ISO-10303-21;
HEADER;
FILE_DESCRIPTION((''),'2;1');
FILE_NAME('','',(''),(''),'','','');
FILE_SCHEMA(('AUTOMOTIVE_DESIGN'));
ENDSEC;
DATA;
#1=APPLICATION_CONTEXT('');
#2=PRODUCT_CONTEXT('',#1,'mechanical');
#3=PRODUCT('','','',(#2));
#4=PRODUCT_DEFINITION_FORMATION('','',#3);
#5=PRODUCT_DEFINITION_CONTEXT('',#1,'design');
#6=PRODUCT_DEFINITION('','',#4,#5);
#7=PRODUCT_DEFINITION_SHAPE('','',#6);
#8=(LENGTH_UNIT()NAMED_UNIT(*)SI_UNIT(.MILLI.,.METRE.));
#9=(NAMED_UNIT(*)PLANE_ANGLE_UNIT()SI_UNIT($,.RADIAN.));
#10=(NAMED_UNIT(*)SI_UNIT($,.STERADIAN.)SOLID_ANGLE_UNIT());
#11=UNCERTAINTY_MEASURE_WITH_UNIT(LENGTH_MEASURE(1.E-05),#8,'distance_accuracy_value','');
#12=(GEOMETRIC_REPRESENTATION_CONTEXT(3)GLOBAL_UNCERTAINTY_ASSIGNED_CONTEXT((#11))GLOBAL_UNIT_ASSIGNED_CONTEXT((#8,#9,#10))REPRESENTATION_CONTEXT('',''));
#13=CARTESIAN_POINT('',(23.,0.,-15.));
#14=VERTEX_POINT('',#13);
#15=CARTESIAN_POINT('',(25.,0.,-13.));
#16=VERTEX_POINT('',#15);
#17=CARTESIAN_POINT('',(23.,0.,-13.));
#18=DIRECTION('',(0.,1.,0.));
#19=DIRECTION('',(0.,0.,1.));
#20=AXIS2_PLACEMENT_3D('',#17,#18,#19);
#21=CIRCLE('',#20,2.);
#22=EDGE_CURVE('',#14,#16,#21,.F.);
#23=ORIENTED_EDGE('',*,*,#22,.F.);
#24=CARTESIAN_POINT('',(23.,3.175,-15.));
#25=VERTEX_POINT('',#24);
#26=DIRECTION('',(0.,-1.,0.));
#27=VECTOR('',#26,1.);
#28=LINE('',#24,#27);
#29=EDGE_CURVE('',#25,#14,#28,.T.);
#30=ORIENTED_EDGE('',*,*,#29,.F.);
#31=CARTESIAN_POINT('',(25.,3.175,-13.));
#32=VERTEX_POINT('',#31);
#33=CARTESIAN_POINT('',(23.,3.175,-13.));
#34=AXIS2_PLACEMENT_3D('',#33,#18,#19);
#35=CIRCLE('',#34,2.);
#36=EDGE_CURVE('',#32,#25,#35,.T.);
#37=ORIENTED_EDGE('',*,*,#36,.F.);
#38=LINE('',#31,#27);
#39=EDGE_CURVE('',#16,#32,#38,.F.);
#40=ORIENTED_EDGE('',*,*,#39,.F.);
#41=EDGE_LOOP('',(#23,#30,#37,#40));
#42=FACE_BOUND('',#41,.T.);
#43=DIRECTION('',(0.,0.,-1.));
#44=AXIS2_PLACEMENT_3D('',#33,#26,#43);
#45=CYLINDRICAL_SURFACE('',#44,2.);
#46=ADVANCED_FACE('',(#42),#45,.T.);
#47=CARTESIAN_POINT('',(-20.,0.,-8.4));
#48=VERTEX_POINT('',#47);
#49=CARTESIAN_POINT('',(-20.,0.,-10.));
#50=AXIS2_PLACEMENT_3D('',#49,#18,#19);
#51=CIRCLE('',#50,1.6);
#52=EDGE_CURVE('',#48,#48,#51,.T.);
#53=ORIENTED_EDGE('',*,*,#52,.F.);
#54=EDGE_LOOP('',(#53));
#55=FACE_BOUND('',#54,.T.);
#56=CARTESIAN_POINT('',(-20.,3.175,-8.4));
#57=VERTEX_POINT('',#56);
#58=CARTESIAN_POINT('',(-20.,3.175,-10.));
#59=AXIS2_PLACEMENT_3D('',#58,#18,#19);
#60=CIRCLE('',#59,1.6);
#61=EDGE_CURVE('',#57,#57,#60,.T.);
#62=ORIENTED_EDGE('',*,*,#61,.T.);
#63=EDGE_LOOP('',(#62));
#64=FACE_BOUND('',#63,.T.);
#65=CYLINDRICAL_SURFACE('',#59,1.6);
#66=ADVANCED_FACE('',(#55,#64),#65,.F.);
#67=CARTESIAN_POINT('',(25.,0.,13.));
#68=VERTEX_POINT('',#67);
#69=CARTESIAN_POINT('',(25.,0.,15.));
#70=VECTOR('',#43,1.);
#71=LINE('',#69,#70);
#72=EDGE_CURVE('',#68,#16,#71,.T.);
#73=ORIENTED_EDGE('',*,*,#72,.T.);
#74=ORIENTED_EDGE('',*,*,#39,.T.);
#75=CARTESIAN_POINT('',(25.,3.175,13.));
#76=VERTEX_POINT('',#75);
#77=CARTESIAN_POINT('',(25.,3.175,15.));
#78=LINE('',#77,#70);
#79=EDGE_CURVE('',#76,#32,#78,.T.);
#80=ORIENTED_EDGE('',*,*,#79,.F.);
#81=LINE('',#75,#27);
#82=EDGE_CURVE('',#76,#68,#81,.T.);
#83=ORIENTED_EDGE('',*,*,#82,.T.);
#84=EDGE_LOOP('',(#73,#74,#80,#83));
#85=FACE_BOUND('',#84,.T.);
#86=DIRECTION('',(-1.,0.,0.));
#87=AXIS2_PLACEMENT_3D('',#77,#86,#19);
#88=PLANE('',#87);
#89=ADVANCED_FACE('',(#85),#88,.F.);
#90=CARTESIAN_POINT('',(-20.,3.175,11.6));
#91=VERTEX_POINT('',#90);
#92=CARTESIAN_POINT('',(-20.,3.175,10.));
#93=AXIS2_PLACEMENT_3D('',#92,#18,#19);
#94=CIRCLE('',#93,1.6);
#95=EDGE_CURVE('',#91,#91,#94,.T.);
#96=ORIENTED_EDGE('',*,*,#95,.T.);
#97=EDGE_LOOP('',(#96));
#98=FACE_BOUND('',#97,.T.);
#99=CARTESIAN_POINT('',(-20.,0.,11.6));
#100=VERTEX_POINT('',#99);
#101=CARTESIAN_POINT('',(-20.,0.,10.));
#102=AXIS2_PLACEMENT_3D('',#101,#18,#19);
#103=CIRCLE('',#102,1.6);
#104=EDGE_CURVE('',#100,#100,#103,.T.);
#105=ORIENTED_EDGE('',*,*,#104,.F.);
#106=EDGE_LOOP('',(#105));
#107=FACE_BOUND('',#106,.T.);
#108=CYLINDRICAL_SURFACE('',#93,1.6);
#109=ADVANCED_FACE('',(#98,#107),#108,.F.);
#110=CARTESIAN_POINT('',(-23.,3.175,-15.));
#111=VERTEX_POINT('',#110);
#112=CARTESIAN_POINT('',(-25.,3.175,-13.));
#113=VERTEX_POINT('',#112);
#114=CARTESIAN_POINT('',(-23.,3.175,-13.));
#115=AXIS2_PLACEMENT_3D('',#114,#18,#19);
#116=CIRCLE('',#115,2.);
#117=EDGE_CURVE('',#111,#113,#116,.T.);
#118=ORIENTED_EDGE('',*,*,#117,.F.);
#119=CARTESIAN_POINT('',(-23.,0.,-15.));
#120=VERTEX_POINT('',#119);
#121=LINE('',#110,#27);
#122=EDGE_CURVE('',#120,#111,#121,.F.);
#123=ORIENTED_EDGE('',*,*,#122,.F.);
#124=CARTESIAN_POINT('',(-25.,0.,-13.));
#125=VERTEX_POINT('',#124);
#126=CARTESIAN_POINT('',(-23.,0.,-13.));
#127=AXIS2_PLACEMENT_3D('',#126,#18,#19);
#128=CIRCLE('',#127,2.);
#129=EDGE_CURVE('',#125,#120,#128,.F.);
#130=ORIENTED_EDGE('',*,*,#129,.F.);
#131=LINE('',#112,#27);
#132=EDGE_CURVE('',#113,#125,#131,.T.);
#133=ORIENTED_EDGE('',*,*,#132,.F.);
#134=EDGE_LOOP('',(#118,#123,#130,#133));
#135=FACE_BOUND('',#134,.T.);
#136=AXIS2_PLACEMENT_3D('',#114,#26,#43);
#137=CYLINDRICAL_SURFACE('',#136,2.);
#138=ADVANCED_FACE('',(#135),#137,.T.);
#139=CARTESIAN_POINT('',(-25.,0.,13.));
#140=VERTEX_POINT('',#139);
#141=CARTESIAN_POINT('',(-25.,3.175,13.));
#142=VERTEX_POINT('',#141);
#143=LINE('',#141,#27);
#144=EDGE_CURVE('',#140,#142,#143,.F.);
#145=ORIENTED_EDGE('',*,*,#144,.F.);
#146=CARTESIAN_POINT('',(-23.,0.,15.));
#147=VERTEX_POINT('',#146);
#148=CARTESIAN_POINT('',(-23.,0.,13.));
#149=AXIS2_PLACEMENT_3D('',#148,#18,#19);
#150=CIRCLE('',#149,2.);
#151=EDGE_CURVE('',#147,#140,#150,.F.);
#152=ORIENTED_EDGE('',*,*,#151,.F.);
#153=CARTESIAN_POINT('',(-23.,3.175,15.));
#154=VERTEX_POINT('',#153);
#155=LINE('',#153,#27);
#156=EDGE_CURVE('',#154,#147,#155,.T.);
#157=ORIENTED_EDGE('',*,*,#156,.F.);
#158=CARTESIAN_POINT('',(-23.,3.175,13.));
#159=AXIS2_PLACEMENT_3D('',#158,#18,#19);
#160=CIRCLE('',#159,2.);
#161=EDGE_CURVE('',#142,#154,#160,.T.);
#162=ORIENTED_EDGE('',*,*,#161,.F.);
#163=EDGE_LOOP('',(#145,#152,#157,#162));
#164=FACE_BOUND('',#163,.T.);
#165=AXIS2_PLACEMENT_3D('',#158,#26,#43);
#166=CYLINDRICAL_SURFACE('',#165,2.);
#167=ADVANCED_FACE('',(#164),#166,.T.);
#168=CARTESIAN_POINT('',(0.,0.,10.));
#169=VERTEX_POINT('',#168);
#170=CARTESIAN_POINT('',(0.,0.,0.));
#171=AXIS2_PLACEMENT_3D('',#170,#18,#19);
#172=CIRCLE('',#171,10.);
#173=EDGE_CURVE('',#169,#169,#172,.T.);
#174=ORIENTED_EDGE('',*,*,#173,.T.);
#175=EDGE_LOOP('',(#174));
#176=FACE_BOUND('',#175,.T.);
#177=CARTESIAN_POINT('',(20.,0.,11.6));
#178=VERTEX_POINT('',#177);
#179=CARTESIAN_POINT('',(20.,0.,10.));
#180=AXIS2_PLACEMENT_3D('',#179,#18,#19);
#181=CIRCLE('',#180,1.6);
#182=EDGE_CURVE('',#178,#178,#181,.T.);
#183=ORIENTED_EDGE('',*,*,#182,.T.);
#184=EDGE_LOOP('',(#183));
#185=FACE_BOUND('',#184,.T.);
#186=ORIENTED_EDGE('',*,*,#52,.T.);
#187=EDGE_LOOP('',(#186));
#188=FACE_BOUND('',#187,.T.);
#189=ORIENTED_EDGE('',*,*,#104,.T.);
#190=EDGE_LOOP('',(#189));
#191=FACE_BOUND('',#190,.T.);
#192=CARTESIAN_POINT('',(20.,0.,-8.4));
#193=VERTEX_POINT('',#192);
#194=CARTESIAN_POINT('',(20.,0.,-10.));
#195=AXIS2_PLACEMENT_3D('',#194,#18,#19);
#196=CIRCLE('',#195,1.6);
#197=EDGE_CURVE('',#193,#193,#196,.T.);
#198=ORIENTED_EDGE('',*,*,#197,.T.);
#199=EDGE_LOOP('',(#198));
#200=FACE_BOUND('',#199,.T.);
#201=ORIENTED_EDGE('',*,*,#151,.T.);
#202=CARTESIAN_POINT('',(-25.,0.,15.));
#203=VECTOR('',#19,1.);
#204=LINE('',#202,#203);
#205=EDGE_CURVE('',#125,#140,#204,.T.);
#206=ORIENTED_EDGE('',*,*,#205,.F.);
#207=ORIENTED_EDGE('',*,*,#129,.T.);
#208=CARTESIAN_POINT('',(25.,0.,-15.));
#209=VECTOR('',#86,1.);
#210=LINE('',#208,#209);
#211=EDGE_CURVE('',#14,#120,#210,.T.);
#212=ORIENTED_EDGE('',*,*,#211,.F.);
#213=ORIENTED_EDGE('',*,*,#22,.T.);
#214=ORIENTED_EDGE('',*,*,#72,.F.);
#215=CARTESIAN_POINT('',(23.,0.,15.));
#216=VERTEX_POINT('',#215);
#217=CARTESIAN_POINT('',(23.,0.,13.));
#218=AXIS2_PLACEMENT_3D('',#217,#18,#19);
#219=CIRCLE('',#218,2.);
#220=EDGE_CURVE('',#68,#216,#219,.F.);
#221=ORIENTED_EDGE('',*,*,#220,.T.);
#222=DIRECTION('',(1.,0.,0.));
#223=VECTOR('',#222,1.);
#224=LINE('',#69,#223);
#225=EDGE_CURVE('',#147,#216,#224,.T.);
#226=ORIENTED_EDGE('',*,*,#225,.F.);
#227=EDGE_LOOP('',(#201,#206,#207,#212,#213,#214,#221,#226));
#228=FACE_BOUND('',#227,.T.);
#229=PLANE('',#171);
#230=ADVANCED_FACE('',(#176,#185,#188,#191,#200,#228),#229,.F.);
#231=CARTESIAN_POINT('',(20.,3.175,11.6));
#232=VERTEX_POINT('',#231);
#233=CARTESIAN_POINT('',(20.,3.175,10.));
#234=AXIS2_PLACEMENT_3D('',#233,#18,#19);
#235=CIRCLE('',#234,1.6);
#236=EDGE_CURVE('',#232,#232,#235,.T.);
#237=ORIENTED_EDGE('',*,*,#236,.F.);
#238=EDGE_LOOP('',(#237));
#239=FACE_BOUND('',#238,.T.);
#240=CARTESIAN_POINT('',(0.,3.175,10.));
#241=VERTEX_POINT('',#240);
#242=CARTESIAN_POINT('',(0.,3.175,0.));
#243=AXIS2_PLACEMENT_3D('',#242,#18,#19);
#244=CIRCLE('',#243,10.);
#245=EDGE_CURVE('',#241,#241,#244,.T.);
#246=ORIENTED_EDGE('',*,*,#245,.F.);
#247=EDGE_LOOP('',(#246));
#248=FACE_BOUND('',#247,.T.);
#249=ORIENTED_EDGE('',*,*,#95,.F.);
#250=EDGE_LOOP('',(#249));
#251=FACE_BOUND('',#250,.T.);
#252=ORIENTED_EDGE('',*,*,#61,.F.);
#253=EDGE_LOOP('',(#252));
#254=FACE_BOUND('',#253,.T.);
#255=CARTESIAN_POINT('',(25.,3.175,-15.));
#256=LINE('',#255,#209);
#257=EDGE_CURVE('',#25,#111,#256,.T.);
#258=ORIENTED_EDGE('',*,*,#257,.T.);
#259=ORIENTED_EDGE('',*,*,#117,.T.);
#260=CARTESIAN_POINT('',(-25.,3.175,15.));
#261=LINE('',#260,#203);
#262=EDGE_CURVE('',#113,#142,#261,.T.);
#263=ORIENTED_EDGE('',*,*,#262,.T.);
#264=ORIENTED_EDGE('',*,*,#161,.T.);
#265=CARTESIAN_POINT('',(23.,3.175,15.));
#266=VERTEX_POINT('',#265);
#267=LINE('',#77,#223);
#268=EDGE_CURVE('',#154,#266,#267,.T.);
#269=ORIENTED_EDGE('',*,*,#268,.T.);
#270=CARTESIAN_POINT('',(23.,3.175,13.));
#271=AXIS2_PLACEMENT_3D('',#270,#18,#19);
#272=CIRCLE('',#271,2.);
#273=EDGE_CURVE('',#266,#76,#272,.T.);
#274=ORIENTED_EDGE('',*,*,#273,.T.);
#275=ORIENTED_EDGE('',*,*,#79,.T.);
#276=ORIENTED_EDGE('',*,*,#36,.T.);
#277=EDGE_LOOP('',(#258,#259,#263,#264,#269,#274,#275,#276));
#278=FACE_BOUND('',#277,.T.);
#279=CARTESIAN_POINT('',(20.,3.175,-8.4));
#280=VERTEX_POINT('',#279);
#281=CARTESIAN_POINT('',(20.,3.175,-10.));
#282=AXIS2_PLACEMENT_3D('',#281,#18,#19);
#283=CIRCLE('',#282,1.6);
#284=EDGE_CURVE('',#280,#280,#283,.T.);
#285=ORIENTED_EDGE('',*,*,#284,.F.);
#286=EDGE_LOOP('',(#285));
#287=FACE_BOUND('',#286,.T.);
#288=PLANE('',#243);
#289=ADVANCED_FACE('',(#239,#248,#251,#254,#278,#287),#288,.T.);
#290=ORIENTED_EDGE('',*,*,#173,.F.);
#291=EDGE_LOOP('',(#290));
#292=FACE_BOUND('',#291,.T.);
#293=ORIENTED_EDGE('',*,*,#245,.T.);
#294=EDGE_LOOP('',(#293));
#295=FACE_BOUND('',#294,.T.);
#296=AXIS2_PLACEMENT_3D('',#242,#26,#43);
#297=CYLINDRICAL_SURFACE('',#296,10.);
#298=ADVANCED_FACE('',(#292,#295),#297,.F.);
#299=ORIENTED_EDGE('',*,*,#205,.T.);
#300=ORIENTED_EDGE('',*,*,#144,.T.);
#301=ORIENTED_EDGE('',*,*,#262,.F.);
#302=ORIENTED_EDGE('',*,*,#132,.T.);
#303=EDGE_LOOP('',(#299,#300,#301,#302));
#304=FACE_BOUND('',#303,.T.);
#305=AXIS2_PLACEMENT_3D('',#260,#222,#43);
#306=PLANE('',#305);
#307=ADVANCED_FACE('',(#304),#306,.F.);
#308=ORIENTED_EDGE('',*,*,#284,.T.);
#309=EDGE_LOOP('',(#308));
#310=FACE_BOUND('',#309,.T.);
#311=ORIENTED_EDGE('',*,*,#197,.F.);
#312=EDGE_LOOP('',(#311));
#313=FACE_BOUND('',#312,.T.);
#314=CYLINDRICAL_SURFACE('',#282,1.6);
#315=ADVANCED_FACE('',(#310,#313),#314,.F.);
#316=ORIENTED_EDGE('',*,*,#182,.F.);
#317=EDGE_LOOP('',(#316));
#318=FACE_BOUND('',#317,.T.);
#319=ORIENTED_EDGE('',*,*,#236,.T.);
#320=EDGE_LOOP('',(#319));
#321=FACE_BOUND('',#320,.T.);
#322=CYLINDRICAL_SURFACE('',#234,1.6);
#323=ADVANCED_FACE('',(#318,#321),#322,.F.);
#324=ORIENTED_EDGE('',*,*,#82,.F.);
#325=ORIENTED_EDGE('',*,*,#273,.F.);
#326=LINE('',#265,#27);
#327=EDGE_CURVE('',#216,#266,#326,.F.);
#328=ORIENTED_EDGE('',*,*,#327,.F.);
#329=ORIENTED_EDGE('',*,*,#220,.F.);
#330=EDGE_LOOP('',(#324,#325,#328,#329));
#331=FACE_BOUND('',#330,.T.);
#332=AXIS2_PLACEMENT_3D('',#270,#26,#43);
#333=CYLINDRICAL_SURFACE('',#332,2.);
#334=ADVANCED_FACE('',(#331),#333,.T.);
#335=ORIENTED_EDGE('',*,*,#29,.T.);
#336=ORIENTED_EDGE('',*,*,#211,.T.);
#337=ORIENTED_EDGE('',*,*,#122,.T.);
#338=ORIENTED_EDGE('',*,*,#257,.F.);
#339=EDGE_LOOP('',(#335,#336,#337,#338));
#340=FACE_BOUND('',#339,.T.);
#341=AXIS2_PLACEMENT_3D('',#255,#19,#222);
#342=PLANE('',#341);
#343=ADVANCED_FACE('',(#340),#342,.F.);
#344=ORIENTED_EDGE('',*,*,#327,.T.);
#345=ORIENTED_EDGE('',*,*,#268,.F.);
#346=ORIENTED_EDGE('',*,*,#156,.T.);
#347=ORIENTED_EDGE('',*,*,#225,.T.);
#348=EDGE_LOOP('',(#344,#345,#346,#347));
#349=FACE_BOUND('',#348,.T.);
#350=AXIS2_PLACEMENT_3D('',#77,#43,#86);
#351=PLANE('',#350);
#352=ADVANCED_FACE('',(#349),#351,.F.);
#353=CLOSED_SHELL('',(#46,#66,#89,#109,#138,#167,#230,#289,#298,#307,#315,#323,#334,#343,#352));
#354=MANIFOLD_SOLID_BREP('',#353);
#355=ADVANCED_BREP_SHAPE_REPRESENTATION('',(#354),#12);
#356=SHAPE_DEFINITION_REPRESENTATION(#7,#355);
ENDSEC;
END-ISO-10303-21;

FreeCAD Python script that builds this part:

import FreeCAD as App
import Part
import Sketcher
from FreeCAD import Vector


def edges_at(feature, points):
    """Names of the edges that pass closest to the given points."""
    edges = feature.Shape.Edges
    near = lambda p: min(range(len(edges)), key=lambda i: edges[i].distToShape(Part.Vertex(*p))[0])
    return sorted({f"Edge{near(p) + 1}" for p in points})

doc = App.newDocument("Part")
body = doc.addObject("PartDesign::Body", "Body")

# Sketch on XZ plane
sketch1 = body.newObject("Sketcher::SketchObject", "Sketch")
sketch1.AttachmentSupport = (doc.getObject("XZ_Plane"), [""])
sketch1.MapMode = "FlatFace"
sketch1.addGeometry(Part.LineSegment(Vector(-25, -15, 0), Vector(-25, 15, 0)), False)
sketch1.addGeometry(Part.LineSegment(Vector(-25, 15, 0), Vector(25, 15, 0)), False)
sketch1.addGeometry(Part.LineSegment(Vector(25, 15, 0), Vector(25, -15, 0)), False)
sketch1.addGeometry(Part.LineSegment(Vector(25, -15, 0), Vector(-25, -15, 0)), False)
sketch1.addGeometry(Part.Circle(Vector(0, 0, 0), Vector(0, 0, 1), 10), False)
sketch1.addConstraint(Sketcher.Constraint("Coincident", 0, 2, 1, 1))
sketch1.addConstraint(Sketcher.Constraint("Coincident", 1, 2, 2, 1))
sketch1.addConstraint(Sketcher.Constraint("Coincident", 2, 2, 3, 1))
sketch1.addConstraint(Sketcher.Constraint("Coincident", 3, 2, 0, 1))
sketch1.addConstraint(Sketcher.Constraint("Vertical", 0))
sketch1.addConstraint(Sketcher.Constraint("Horizontal", 1))
sketch1.addConstraint(Sketcher.Constraint("Vertical", 2))
sketch1.addConstraint(Sketcher.Constraint("Horizontal", 3))
sketch1.addConstraint(Sketcher.Constraint("Coincident", 4, 3, -1, 1))
sketch1.addConstraint(Sketcher.Constraint("Symmetric", 0, 2, 2, 2, -1, 1))
sketch1.addConstraint(Sketcher.Constraint("Diameter", 4, 20.0))
sketch1.addConstraint(Sketcher.Constraint("DistanceX", 1, 1, 1, 2, 50.0))
sketch1.addConstraint(Sketcher.Constraint("DistanceY", 0, 1, 0, 2, 30.0))
pad1 = body.newObject("PartDesign::Pad", "Pad")
pad1.Profile = sketch1
pad1.Length = 3.175
pad1.Reversed = True

# Sketch on XZ plane
sketch2 = body.newObject("Sketcher::SketchObject", "Sketch001")
sketch2.AttachmentSupport = (doc.getObject("XZ_Plane"), [""])
sketch2.MapMode = "FlatFace"
sketch2.AttachmentOffset = App.Placement(Vector(0, 0, -3.175), App.Rotation())
sketch2.addGeometry(Part.Circle(Vector(0, 0, 0), Vector(0, 0, 1), 1.6), False)
sketch2.addGeometry(Part.Circle(Vector(-20, -10, 0), Vector(0, 0, 1), 1.6), False)
sketch2.addGeometry(Part.Circle(Vector(20, 10, 0), Vector(0, 0, 1), 1.6), False)
sketch2.addGeometry(Part.Circle(Vector(20, -10, 0), Vector(0, 0, 1), 1.6), False)
sketch2.addGeometry(Part.Circle(Vector(-20, 10, 0), Vector(0, 0, 1), 1.6), False)
sketch2.addConstraint(Sketcher.Constraint("Coincident", 0, 3, -1, 1))
sketch2.addConstraint(Sketcher.Constraint("Equal", 0, 1))
sketch2.addConstraint(Sketcher.Constraint("Equal", 1, 2))
sketch2.addConstraint(Sketcher.Constraint("Equal", 2, 3))
sketch2.addConstraint(Sketcher.Constraint("Equal", 3, 4))
sketch2.addConstraint(Sketcher.Constraint("Symmetric", 1, 3, 2, 3, -1, 1))
sketch2.addConstraint(Sketcher.Constraint("Symmetric", 3, 3, 4, 3, -1, 1))
sketch2.addConstraint(Sketcher.Constraint("Symmetric", 1, 3, 3, 3, -2))
sketch2.addConstraint(Sketcher.Constraint("Diameter", 0, 3.2))
sketch2.addConstraint(Sketcher.Constraint("DistanceX", 1, 3, -1, 1, 20.0))
sketch2.addConstraint(Sketcher.Constraint("DistanceY", 1, 3, -1, 1, 10.0))
doc.recompute()
hole = body.newObject("PartDesign::Hole", "Hole")
hole.Profile = sketch2
hole.ThreadType = "None"
hole.Diameter = 3.2
hole.DepthType = "Dimension"
hole.Depth = 3.175
hole.DrillPoint = "Flat"
hole.Reversed = True
doc.recompute()

fillet = body.newObject("PartDesign::Fillet", "Fillet")
fillet.Base = (hole, edges_at(hole, [
    (-25, 1.587, -15),
    (25, 1.587, -15),
    (25, 1.587, 15),
    (-25, 1.587, 15),
]))
fillet.Radius = 2

doc.recompute()
